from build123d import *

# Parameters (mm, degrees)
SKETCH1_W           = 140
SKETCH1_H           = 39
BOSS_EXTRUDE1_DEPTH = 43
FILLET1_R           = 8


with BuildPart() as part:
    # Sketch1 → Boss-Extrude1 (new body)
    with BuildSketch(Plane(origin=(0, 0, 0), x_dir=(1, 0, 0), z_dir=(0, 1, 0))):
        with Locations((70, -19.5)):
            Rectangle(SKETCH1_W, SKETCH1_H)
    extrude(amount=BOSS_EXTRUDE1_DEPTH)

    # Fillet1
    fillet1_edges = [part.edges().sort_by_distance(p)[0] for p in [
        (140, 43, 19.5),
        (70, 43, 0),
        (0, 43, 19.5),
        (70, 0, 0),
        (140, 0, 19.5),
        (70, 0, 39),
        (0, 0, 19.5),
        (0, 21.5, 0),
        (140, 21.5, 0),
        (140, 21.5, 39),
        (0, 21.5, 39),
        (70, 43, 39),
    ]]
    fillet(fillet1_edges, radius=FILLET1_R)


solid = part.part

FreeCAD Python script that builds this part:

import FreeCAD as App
import Part
import Sketcher

doc = App.newDocument("Part")
params = doc.addObject("Spreadsheet::Sheet", "Params")
for row, (alias, value) in enumerate([
    ("sketch1_width", "140 mm"),
    ("sketch1_height", "39 mm"),
    ("pad1_length", "43 mm"),
    ("fillet_radius", "8 mm"),
], start=1):
    params.set(f"A{row}", alias)
    params.set(f"B{row}", "=" + value)
    params.setAlias(f"B{row}", alias)

body = doc.addObject("PartDesign::Body", "Body")

sketch1 = body.newObject("Sketcher::SketchObject", "Sketch")
sketch1.AttachmentSupport = (doc.getObject("XZ_Plane"), [""])
sketch1.MapMode = "FlatFace"
sketch1.addGeometry([
    Part.LineSegment(App.Vector(0, 0, 0), App.Vector(0, 39, 0)),
    Part.LineSegment(App.Vector(0, 39, 0), App.Vector(140, 39, 0)),
    Part.LineSegment(App.Vector(140, 39, 0), App.Vector(140, 0, 0)),
    Part.LineSegment(App.Vector(140, 0, 0), App.Vector(0, 0, 0)),
], False)
sketch1.addConstraint([
    Sketcher.Constraint("Coincident", 0, 2, 1, 1),
    Sketcher.Constraint("Coincident", 1, 2, 2, 1),
    Sketcher.Constraint("Coincident", 2, 2, 3, 1),
    Sketcher.Constraint("Coincident", 3, 2, 0, 1),
    Sketcher.Constraint("Vertical", 0),
    Sketcher.Constraint("Horizontal", 1),
    Sketcher.Constraint("Vertical", 2),
    Sketcher.Constraint("Horizontal", 3),
    Sketcher.Constraint("Coincident", 3, 2, -1, 1),
    Sketcher.Constraint("DistanceX", 1, 1, 1, 2, 140.0),
    Sketcher.Constraint("DistanceY", 0, 1, 0, 2, 39.0),
])
sketch1.setExpression("Constraints[9]", "Params.sketch1_width")
sketch1.setExpression("Constraints[10]", "Params.sketch1_height")
pad1 = body.newObject("PartDesign::Pad", "Pad")
pad1.Profile = sketch1
pad1.setExpression("Length", "Params.pad1_length")
pad1.Reversed = True
doc.recompute()

fillet = body.newObject("PartDesign::Fillet", "Fillet")
fillet.Base = (pad1, ["Edge1"])
fillet.UseAllEdges = True
fillet.setExpression("Radius", "Params.fillet_radius")

doc.recompute()
